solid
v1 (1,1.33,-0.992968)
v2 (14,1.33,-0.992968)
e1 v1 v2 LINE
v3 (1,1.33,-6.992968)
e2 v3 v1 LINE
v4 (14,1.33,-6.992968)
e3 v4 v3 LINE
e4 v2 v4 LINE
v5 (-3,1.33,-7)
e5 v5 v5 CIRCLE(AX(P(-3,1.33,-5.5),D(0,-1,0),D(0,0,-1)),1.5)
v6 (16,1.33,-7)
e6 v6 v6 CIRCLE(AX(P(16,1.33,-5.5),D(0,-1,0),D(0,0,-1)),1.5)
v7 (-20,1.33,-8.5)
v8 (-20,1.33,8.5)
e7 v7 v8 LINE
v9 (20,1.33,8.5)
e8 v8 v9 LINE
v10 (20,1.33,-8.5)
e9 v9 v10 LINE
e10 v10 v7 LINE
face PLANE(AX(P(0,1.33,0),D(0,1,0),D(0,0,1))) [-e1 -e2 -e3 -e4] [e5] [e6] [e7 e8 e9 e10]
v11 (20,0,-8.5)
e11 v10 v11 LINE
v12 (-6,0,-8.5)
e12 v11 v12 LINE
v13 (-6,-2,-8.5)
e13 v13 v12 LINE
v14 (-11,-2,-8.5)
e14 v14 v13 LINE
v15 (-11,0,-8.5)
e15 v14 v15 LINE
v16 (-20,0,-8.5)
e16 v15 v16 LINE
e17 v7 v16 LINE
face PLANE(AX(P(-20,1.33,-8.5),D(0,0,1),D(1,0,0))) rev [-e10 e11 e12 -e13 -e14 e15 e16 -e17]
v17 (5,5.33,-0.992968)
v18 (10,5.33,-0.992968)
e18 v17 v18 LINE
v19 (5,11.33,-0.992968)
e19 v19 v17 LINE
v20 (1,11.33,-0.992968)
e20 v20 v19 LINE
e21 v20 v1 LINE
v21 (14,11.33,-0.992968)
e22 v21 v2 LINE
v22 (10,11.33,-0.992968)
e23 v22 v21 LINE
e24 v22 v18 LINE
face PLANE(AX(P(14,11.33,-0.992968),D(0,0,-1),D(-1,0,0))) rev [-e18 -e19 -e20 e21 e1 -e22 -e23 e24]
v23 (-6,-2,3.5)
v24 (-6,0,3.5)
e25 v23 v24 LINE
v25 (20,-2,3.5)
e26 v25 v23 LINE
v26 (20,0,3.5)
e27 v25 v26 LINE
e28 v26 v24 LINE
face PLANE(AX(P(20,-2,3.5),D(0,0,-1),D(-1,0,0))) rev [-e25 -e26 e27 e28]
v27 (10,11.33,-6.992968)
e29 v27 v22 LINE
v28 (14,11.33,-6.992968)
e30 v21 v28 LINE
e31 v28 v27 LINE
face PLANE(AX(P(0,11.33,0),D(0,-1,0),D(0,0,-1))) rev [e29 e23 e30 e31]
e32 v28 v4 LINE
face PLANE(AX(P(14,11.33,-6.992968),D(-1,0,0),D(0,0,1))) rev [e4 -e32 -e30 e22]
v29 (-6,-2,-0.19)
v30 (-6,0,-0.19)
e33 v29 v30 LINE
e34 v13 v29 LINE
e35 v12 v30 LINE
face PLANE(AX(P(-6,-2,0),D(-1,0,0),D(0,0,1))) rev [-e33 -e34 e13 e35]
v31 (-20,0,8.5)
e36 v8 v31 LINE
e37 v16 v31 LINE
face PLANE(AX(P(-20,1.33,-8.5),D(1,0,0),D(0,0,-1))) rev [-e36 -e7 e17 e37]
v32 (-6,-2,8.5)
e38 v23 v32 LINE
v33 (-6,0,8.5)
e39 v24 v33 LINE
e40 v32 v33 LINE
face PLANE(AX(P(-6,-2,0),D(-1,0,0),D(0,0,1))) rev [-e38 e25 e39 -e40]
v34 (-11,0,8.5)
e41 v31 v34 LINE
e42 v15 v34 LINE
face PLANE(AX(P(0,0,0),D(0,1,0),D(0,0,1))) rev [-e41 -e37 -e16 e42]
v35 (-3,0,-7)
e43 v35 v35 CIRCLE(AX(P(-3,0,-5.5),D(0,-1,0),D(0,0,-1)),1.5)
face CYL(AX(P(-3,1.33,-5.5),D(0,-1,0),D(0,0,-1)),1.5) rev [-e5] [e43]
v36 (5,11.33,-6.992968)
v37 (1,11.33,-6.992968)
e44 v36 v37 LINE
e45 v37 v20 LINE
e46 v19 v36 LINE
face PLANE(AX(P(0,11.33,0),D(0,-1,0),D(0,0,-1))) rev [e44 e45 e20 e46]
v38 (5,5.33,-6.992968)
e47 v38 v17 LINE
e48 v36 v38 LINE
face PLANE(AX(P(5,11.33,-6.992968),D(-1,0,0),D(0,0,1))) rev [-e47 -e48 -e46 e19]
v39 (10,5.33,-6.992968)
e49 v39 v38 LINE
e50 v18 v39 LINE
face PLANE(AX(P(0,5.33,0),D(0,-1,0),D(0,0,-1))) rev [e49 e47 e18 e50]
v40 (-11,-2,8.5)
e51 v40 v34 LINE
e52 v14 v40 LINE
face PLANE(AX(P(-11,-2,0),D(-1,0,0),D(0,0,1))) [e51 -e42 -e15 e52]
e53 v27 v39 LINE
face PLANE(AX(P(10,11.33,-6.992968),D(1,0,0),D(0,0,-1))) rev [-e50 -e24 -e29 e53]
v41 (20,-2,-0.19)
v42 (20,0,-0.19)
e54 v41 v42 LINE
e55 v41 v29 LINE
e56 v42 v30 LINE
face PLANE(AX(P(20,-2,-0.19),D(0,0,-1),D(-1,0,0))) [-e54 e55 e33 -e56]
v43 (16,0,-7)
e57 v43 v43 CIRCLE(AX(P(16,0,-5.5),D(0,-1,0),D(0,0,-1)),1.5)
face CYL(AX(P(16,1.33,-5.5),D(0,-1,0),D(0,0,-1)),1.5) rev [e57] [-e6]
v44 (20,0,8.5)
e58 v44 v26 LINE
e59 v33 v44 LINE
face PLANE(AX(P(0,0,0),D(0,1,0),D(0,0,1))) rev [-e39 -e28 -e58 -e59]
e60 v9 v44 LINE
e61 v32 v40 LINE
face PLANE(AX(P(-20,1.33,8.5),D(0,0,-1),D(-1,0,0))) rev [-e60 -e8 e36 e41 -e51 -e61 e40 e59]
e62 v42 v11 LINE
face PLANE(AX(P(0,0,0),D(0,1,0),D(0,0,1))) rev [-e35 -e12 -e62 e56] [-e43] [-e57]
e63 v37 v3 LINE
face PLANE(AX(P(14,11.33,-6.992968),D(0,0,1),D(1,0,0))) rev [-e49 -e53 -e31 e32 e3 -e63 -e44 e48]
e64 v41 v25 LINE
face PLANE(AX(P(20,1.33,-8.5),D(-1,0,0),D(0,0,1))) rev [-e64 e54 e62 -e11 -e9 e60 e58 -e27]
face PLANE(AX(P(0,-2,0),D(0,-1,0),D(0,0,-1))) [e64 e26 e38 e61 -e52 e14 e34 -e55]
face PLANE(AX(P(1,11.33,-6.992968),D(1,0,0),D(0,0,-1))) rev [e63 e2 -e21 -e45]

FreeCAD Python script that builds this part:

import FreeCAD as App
import Part
import Sketcher


def add_polygon(sketch, points):
    """Adds a closed chain of lines whose ends are joined by coincident constraints."""
    first, n = sketch.GeometryCount, len(points)
    for a, b in zip(points, points[1:] + points[:1]):
        sketch.addGeometry(Part.LineSegment(App.Vector(*a, 0), App.Vector(*b, 0)), False)
    for i in range(n):
        sketch.addConstraint(Sketcher.Constraint("Coincident", first + i, 2, first + (i + 1) % n, 1))

doc = App.newDocument("Part")
params = doc.addObject("Spreadsheet::Sheet", "Params")
for row, (alias, value) in enumerate([
    ("sketch1_width", "40 mm"),
    ("sketch1_height", "17 mm"),
    ("pad1_length", "1.33 mm"),
    ("sketch2_width", "5 mm"),
    ("sketch2_width2", "26 mm"),
    ("sketch2_height", "17 mm"),
    ("sketch2_height2", "8.31 mm"),
    ("pad2_length", "2 mm"),
    ("sketch3_diameter", "3 mm"),
    ("sketch4_width", "4 mm"),
    ("sketch4_height", "6 mm"),
    ("pad3_length", "10 mm"),
    ("sketch5_width", "5 mm"),
    ("sketch5_height", "6 mm"),
    ("pad4_length", "4 mm"),
], start=1):
    params.set(f"A{row}", alias)
    params.set(f"B{row}", "=" + value)
    params.setAlias(f"B{row}", alias)

body = doc.addObject("PartDesign::Body", "Body")

sketch1 = doc.addObject("Sketcher::SketchObject", "Sketch")
body.addObject(sketch1)
sketch1.AttachmentSupport = (doc.XZ_Plane, [""])
sketch1.MapMode = "FlatFace"
add_polygon(sketch1, [(-20, -8), (-20, 8), (20, 8), (20, -8)])
sketch1.addConstraint(Sketcher.Constraint("Vertical", 0))
sketch1.addConstraint(Sketcher.Constraint("Horizontal", 1))
sketch1.addConstraint(Sketcher.Constraint("Vertical", 2))
sketch1.addConstraint(Sketcher.Constraint("Horizontal", 3))
sketch1.addConstraint(Sketcher.Constraint("Symmetric", 0, 2, 2, 2, -1, 1))
sketch1.addConstraint(Sketcher.Constraint("DistanceX", 1, 1, 1, 2, 40.0))
sketch1.addConstraint(Sketcher.Constraint("DistanceY", 0, 1, 0, 2, 17.0))
sketch1.setExpression("Constraints[9]", "Params.sketch1_width")
sketch1.setExpression("Constraints[10]", "Params.sketch1_height")
pad1 = doc.addObject("PartDesign::Pad", "Pad")
body.addObject(pad1)
pad1.Profile = sketch1
pad1.setExpression("Length", "Params.pad1_length")
pad1.Reversed = True

sketch2 = doc.addObject("Sketcher::SketchObject", "Sketch001")
body.addObject(sketch2)
sketch2.AttachmentSupport = (doc.XZ_Plane, [""])
sketch2.MapMode = "FlatFace"
add_polygon(sketch2, [(-11, -8.5), (-6, -8.5), (-6, -0.2), (20, -0.2), (20, 3.5), (-6, 3.5), (-6, 8.5), (-11, 8.5)])
sketch2.addConstraint(Sketcher.Constraint("Horizontal", 0))
sketch2.addConstraint(Sketcher.Constraint("Vertical", 1))
sketch2.addConstraint(Sketcher.Constraint("Horizontal", 2))
sketch2.addConstraint(Sketcher.Constraint("Vertical", 3))
sketch2.addConstraint(Sketcher.Constraint("Horizontal", 4))
sketch2.addConstraint(Sketcher.Constraint("Vertical", 5))
sketch2.addConstraint(Sketcher.Constraint("Horizontal", 6))
sketch2.addConstraint(Sketcher.Constraint("Vertical", 7))
sketch2.addConstraint(Sketcher.Constraint("Symmetric", 0, 2, 5, 2, -1))
sketch2.addConstraint(Sketcher.Constraint("Equal", 6, 5))
sketch2.addConstraint(Sketcher.Constraint("DistanceX", 0, 1, 0, 2, 5.0))
sketch2.addConstraint(Sketcher.Constraint("DistanceX", 2, 1, 2, 2, 26.0))
sketch2.addConstraint(Sketcher.Constraint("DistanceY", 7, 2, 7, 1, 17.0))
sketch2.addConstraint(Sketcher.Constraint("DistanceX", 0, 2, -1, 1, 6.0))
sketch2.addConstraint(Sketcher.Constraint("DistanceY", 1, 1, 1, 2, 8.31))
sketch2.setExpression("Constraints[18]", "Params.sketch2_width")
sketch2.setExpression("Constraints[19]", "Params.sketch2_width2")
sketch2.setExpression("Constraints[20]", "Params.sketch2_height")
sketch2.setExpression("Constraints[22]", "Params.sketch2_height2")
pad2 = doc.addObject("PartDesign::Pad", "Pad001")
body.addObject(pad2)
pad2.Profile = sketch2
pad2.setExpression("Length", "Params.pad2_length")

sketch3 = doc.addObject("Sketcher::SketchObject", "Sketch002")
body.addObject(sketch3)
sketch3.AttachmentSupport = (doc.XZ_Plane, [""])
sketch3.MapMode = "FlatFace"
sketch3.addGeometry(Part.Circle(App.Vector(16, -5.5, 0), App.Vector(0, 0, 1), 1.5), False)
sketch3.addGeometry(Part.Circle(App.Vector(-3, -5.5, 0), App.Vector(0, 0, 1), 1.5), False)
sketch3.addConstraint(Sketcher.Constraint("Equal", 0, 1))
sketch3.addConstraint(Sketcher.Constraint("Horizontal", 0, 3, 1, 3))
sketch3.addConstraint(Sketcher.Constraint("Diameter", 0, 3.0))
sketch3.addConstraint(Sketcher.Constraint("DistanceX", -1, 1, 0, 3, 16.0))
sketch3.addConstraint(Sketcher.Constraint("DistanceX", 1, 3, -1, 1, 3.0))
sketch3.addConstraint(Sketcher.Constraint("DistanceY", 0, 3, -1, 1, 5.5))
sketch3.setExpression("Constraints[2]", "Params.sketch3_diameter")
pocket1 = doc.addObject("PartDesign::Pocket", "Pocket")
body.addObject(pocket1)
pocket1.Profile = sketch3
pocket1.Type = "ThroughAll"

sketch4 = doc.addObject("Sketcher::SketchObject", "Sketch003")
body.addObject(sketch4)
sketch4.AttachmentSupport = (doc.XZ_Plane, [""])
sketch4.MapMode = "FlatFace"
sketch4.AttachmentOffset = App.Placement(App.Vector(0, 0, -1.33), App.Rotation())
add_polygon(sketch4, [(10, -7), (10, -1), (14, -1), (14, -7)])
add_polygon(sketch4, [(1, -7), (1, -1), (5, -1), (5, -7)])
sketch4.addConstraint(Sketcher.Constraint("Vertical", 0))
sketch4.addConstraint(Sketcher.Constraint("Horizontal", 1))
sketch4.addConstraint(Sketcher.Constraint("Vertical", 2))
sketch4.addConstraint(Sketcher.Constraint("Horizontal", 3))
sketch4.addConstraint(Sketcher.Constraint("Vertical", 4))
sketch4.addConstraint(Sketcher.Constraint("Horizontal", 5))
sketch4.addConstraint(Sketcher.Constraint("Vertical", 6))
sketch4.addConstraint(Sketcher.Constraint("Horizontal", 7))
sketch4.addConstraint(Sketcher.Constraint("Horizontal", 1, 2, 4, 2))
sketch4.addConstraint(Sketcher.Constraint("Horizontal", 3, 2, 6, 2))
sketch4.addConstraint(Sketcher.Constraint("Equal", 3, 5))
sketch4.addConstraint(Sketcher.Constraint("DistanceX", 1, 1, 1, 2, 4.0))
sketch4.addConstraint(Sketcher.Constraint("DistanceY", 0, 1, 0, 2, 6.0))
sketch4.addConstraint(Sketcher.Constraint("DistanceX", -1, 1, 0, 2, 10.0))
sketch4.addConstraint(Sketcher.Constraint("DistanceX", -1, 1, 4, 2, 1.0))
sketch4.addConstraint(Sketcher.Constraint("DistanceY", 0, 2, -1, 1, 0.992968))
sketch4.setExpression("Constraints[19]", "Params.sketch4_width")
sketch4.setExpression("Constraints[20]", "Params.sketch4_height")
pad3 = doc.addObject("PartDesign::Pad", "Pad002")
body.addObject(pad3)
pad3.Profile = sketch4
pad3.setExpression("Length", "Params.pad3_length")
pad3.Reversed = True

sketch5 = doc.addObject("Sketcher::SketchObject", "Sketch004")
body.addObject(sketch5)
sketch5.AttachmentSupport = (doc.XZ_Plane, [""])
sketch5.MapMode = "FlatFace"
sketch5.AttachmentOffset = App.Placement(App.Vector(0, 0, -1.33), App.Rotation())
add_polygon(sketch5, [(5, -7), (5, -1), (10, -1), (10, -7)])
sketch5.addConstraint(Sketcher.Constraint("Vertical", 0))
sketch5.addConstraint(Sketcher.Constraint("Horizontal", 1))
sketch5.addConstraint(Sketcher.Constraint("Vertical", 2))
sketch5.addConstraint(Sketcher.Constraint("Horizontal", 3))
sketch5.addConstraint(Sketcher.Constraint("DistanceX", 1, 1, 1, 2, 5.0))
sketch5.addConstraint(Sketcher.Constraint("DistanceY", 0, 1, 0, 2, 6.0))
sketch5.addConstraint(Sketcher.Constraint("DistanceX", -1, 1, 0, 2, 5.0))
sketch5.addConstraint(Sketcher.Constraint("DistanceY", 0, 2, -1, 1, 0.992968))
sketch5.setExpression("Constraints[8]", "Params.sketch5_width")
sketch5.setExpression("Constraints[9]", "Params.sketch5_height")
pad4 = doc.addObject("PartDesign::Pad", "Pad003")
body.addObject(pad4)
pad4.Profile = sketch5
pad4.setExpression("Length", "Params.pad4_length")
pad4.Reversed = True

doc.recompute()
